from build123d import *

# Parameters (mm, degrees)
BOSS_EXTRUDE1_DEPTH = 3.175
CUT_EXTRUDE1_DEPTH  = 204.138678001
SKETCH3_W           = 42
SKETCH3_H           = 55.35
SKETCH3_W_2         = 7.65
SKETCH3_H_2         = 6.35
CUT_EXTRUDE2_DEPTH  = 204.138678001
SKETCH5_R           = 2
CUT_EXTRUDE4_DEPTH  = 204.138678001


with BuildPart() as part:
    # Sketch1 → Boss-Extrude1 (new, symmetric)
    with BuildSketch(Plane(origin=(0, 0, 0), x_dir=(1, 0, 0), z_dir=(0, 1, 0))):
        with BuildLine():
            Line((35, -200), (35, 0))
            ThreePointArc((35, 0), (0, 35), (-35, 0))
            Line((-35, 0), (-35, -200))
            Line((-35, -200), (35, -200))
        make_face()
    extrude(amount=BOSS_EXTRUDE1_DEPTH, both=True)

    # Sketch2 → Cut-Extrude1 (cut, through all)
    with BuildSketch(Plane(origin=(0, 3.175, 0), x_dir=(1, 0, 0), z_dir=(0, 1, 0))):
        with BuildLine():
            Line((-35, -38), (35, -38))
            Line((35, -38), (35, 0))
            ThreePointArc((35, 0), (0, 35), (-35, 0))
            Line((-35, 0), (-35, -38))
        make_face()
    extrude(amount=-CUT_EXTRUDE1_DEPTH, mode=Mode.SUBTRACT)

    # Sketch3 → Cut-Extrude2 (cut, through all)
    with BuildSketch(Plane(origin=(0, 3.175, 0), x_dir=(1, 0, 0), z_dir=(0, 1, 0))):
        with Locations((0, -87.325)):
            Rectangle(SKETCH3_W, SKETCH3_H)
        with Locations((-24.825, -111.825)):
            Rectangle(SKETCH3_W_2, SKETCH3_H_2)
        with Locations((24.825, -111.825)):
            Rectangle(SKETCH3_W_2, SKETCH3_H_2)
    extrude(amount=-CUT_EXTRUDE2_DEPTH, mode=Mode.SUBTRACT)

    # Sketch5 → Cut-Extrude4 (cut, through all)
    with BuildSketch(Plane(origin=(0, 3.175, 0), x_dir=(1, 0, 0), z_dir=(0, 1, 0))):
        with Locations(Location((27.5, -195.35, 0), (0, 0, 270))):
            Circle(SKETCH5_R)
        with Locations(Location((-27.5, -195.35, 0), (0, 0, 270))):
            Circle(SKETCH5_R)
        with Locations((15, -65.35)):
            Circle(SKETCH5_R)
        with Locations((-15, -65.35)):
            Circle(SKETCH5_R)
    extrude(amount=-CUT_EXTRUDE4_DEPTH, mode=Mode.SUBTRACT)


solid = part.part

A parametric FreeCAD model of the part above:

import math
import FreeCAD as App
import Part
import Sketcher

doc = App.newDocument("Part")
body = doc.addObject("PartDesign::Body", "Body")

# Sketch on XZ plane
sketch1 = body.newObject("Sketcher::SketchObject", "Sketch")
sketch1.AttachmentSupport = (doc.getObject("XZ_Plane"), [""])
sketch1.MapMode = "FlatFace"
sketch1.addGeometry([
    Part.LineSegment(App.Vector(35, 200, 0), App.Vector(35, 0, 0)),
    Part.ArcOfCircle(Part.Circle(App.Vector(0, 0, 0), App.Vector(0, 0, 1), 35), math.radians(180), math.radians(360)),
    Part.LineSegment(App.Vector(-35, 0, 0), App.Vector(-35, 200, 0)),
    Part.LineSegment(App.Vector(-35, 200, 0), App.Vector(35, 200, 0)),
], False)
sketch1.addConstraint([
    Sketcher.Constraint("Tangent", 0, 2, 1, 2),
    Sketcher.Constraint("Tangent", 1, 1, 2, 1),
    Sketcher.Constraint("Coincident", 2, 2, 3, 1),
    Sketcher.Constraint("Coincident", 3, 2, 0, 1),
    Sketcher.Constraint("Vertical", 0),
    Sketcher.Constraint("Vertical", 2),
    Sketcher.Constraint("Horizontal", 3),
    Sketcher.Constraint("Coincident", 1, 3, -1, 1),
    Sketcher.Constraint("Radius", 1, 35.0),
    Sketcher.Constraint("DistanceY", 0, 2, 0, 1, 200.0),
])
pad1 = body.newObject("PartDesign::Pad", "Pad")
pad1.Profile = sketch1
pad1.Length = 6.35
pad1.Midplane = True

# Sketch on XZ plane
sketch2 = body.newObject("Sketcher::SketchObject", "Sketch001")
sketch2.AttachmentSupport = (doc.getObject("XZ_Plane"), [""])
sketch2.MapMode = "FlatFace"
sketch2.AttachmentOffset = App.Placement(App.Vector(0, 0, -3.175), App.Rotation())
sketch2.addGeometry([
    Part.LineSegment(App.Vector(-35, 38, 0), App.Vector(35, 38, 0)),
    Part.LineSegment(App.Vector(35, 38, 0), App.Vector(35, 0, 0)),
    Part.ArcOfCircle(Part.Circle(App.Vector(0, 0, 0), App.Vector(0, 0, 1), 35), math.radians(180), math.radians(360)),
    Part.LineSegment(App.Vector(-35, 0, 0), App.Vector(-35, 38, 0)),
], False)
sketch2.addConstraint([
    Sketcher.Constraint("Coincident", 0, 2, 1, 1),
    Sketcher.Constraint("Tangent", 1, 2, 2, 2),
    Sketcher.Constraint("Tangent", 2, 1, 3, 1),
    Sketcher.Constraint("Coincident", 3, 2, 0, 1),
    Sketcher.Constraint("Horizontal", 0),
    Sketcher.Constraint("Vertical", 1),
    Sketcher.Constraint("Vertical", 3),
    Sketcher.Constraint("Coincident", 2, 3, -1, 1),
    Sketcher.Constraint("Radius", 2, 35.0),
    Sketcher.Constraint("DistanceY", 1, 2, 1, 1, 38.0),
])
pocket1 = body.newObject("PartDesign::Pocket", "Pocket")
pocket1.Profile = sketch2
pocket1.Type = "ThroughAll"
pocket1.Reversed = True

# Sketch on XZ plane
sketch3 = body.newObject("Sketcher::SketchObject", "Sketch002")
sketch3.AttachmentSupport = (doc.getObject("XZ_Plane"), [""])
sketch3.MapMode = "FlatFace"
sketch3.AttachmentOffset = App.Placement(App.Vector(0, 0, -3.175), App.Rotation())
sketch3.addGeometry([
    Part.LineSegment(App.Vector(-21, 60, 0), App.Vector(-21, 109, 0)),  # 0
    Part.LineSegment(App.Vector(-21, 109, 0), App.Vector(-29, 109, 0)),  # 1
    Part.LineSegment(App.Vector(-29, 109, 0), App.Vector(-29, 115, 0)),  # 2
    Part.LineSegment(App.Vector(-29, 115, 0), App.Vector(29, 115, 0)),  # 3
    Part.LineSegment(App.Vector(29, 115, 0), App.Vector(29, 109, 0)),  # 4
    Part.LineSegment(App.Vector(29, 109, 0), App.Vector(21, 109, 0)),  # 5
    Part.LineSegment(App.Vector(21, 109, 0), App.Vector(21, 60, 0)),  # 6
    Part.LineSegment(App.Vector(21, 60, 0), App.Vector(-21, 60, 0)),  # 7
], False)
sketch3.addConstraint([
    Sketcher.Constraint("Coincident", 0, 2, 1, 1),
    Sketcher.Constraint("Coincident", 1, 2, 2, 1),
    Sketcher.Constraint("Coincident", 2, 2, 3, 1),
    Sketcher.Constraint("Coincident", 3, 2, 4, 1),
    Sketcher.Constraint("Coincident", 4, 2, 5, 1),
    Sketcher.Constraint("Coincident", 5, 2, 6, 1),
    Sketcher.Constraint("Coincident", 6, 2, 7, 1),
    Sketcher.Constraint("Coincident", 7, 2, 0, 1),
    Sketcher.Constraint("Vertical", 0),
    Sketcher.Constraint("Horizontal", 1),
    Sketcher.Constraint("Vertical", 2),
    Sketcher.Constraint("Horizontal", 3),
    Sketcher.Constraint("Vertical", 4),
    Sketcher.Constraint("Horizontal", 5),
    Sketcher.Constraint("Vertical", 6),
    Sketcher.Constraint("Horizontal", 7),
    Sketcher.Constraint("Symmetric", 1, 2, 4, 2, -2),
    Sketcher.Constraint("Equal", 1, 5),
    Sketcher.Constraint("DistanceX", 7, 2, 7, 1, 42.0),
    Sketcher.Constraint("DistanceY", 0, 1, 0, 2, 49.0),
    Sketcher.Constraint("DistanceX", 3, 1, 3, 2, 57.3),
    Sketcher.Constraint("DistanceY", -1, 1, 2, 2, 115.0),
    Sketcher.Constraint("DistanceY", 2, 1, 2, 2, 6.35),
])
pocket2 = body.newObject("PartDesign::Pocket", "Pocket001")
pocket2.Profile = sketch3
pocket2.Type = "ThroughAll"
pocket2.Reversed = True

# Sketch on XZ plane
sketch4 = body.newObject("Sketcher::SketchObject", "Sketch003")
sketch4.AttachmentSupport = (doc.getObject("XZ_Plane"), [""])
sketch4.MapMode = "FlatFace"
sketch4.AttachmentOffset = App.Placement(App.Vector(0, 0, -3.175), App.Rotation())
sketch4.addGeometry([
    Part.Circle(App.Vector(27.5, 195.3, 0), App.Vector(0, 0, 1), 2),
    Part.Circle(App.Vector(-27.5, 195.3, 0), App.Vector(0, 0, 1), 2),
    Part.Circle(App.Vector(15, 65.3, 0), App.Vector(0, 0, 1), 2),
    Part.Circle(App.Vector(-15, 65.3, 0), App.Vector(0, 0, 1), 2),
], False)
sketch4.addConstraint([
    Sketcher.Constraint("Equal", 0, 1),
    Sketcher.Constraint("Equal", 1, 2),
    Sketcher.Constraint("Equal", 2, 3),
    Sketcher.Constraint("Symmetric", 0, 3, 1, 3, -2),
    Sketcher.Constraint("Symmetric", 2, 3, 3, 3, -2),
    Sketcher.Constraint("Diameter", 0, 4.0),
    Sketcher.Constraint("DistanceX", -1, 1, 2, 3, 15.0),
    Sketcher.Constraint("DistanceX", 1, 3, 0, 3, 55.0),
    Sketcher.Constraint("DistanceY", 2, 3, 0, 3, 130.0),
    Sketcher.Constraint("DistanceY", -1, 1, 0, 3, 195.35),
])
pocket3 = body.newObject("PartDesign::Pocket", "Pocket002")
pocket3.Profile = sketch4
pocket3.Type = "ThroughAll"
pocket3.Reversed = True

doc.recompute()
